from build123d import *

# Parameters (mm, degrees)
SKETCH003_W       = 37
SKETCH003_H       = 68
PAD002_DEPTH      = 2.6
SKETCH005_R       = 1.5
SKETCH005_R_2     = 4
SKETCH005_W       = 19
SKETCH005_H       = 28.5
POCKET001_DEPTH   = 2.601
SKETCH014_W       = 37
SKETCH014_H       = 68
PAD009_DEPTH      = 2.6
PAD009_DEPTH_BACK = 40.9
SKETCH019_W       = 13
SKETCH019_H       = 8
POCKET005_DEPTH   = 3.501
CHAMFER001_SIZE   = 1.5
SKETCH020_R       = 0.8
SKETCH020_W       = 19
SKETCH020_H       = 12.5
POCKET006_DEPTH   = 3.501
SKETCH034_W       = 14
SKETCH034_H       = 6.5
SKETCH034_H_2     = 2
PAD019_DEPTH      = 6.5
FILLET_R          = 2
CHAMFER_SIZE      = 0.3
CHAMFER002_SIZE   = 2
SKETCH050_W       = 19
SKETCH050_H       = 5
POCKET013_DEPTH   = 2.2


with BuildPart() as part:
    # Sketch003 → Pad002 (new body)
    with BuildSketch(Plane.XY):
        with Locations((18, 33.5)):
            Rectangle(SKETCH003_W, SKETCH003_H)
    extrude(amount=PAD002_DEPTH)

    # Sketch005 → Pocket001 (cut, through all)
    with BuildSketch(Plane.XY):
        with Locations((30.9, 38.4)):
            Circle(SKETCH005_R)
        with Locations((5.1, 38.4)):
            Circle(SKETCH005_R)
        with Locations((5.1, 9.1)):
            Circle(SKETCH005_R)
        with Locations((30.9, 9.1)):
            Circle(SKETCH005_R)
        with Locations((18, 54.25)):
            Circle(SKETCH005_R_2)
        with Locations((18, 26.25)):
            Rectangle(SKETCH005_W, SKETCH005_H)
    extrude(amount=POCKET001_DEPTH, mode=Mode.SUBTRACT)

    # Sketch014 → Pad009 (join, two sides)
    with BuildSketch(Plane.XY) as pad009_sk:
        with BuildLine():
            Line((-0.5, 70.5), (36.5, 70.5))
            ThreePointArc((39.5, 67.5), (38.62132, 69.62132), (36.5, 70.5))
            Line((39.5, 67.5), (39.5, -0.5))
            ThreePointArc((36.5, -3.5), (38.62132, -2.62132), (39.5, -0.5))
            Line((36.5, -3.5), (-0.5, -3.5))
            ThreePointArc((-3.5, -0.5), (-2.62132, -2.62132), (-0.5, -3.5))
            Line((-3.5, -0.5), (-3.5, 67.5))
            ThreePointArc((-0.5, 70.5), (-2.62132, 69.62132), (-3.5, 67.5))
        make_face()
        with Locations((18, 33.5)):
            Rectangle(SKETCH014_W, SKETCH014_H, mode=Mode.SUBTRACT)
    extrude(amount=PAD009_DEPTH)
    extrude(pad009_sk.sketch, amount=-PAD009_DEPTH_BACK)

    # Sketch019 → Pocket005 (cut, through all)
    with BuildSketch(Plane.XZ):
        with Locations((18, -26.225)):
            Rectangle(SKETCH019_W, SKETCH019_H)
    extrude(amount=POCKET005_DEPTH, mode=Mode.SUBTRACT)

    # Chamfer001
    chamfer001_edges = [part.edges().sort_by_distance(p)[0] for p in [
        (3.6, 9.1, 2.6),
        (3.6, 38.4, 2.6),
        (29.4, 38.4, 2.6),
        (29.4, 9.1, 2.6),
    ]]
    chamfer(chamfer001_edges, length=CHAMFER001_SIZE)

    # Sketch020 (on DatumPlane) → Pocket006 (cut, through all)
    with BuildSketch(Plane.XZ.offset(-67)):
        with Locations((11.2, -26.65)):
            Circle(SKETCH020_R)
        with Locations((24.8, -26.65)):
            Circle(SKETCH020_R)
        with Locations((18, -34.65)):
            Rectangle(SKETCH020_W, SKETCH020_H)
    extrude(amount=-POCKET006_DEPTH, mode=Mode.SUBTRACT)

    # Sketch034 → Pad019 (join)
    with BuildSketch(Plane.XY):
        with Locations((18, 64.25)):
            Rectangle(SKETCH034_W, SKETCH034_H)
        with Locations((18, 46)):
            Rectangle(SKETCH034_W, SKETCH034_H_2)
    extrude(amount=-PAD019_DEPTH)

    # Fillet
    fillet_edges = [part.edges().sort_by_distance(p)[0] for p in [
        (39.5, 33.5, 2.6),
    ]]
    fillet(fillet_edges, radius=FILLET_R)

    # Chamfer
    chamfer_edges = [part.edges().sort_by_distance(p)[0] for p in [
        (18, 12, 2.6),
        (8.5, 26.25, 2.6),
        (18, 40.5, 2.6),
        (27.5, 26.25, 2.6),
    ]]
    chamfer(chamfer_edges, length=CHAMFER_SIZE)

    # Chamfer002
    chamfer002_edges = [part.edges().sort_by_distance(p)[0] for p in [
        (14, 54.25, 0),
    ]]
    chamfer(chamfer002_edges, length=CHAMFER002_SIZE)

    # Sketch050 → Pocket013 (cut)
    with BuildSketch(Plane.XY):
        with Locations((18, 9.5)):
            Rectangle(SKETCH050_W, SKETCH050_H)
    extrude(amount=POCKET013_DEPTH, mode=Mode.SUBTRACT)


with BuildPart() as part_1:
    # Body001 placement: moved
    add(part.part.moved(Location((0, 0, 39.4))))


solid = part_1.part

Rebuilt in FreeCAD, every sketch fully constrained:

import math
import FreeCAD as App
import Part
import Sketcher


def edges_at(feature, points):
    """Names of the edges that pass closest to the given points."""
    edges = feature.Shape.Edges
    near = lambda p: min(range(len(edges)), key=lambda i: edges[i].distToShape(Part.Vertex(*p))[0])
    return sorted({f"Edge{near(p) + 1}" for p in points})


def add_polygon(sketch, points):
    """Adds a closed chain of lines whose ends are joined by coincident constraints."""
    first, n = sketch.GeometryCount, len(points)
    for a, b in zip(points, points[1:] + points[:1]):
        sketch.addGeometry(Part.LineSegment(App.Vector(*a, 0), App.Vector(*b, 0)), False)
    for i in range(n):
        sketch.addConstraint(Sketcher.Constraint("Coincident", first + i, 2, first + (i + 1) % n, 1))

doc = App.newDocument("Part")
body = doc.addObject("PartDesign::Body", "Body")

sketch1 = body.newObject("Sketcher::SketchObject", "Sketch")
sketch1.AttachmentSupport = (doc.getObject("XY_Plane"), [""])
sketch1.MapMode = "FlatFace"
add_polygon(sketch1, [(-0.5, 67.5), (-0.5, -0.5), (36.5, -0.5), (36.5, 67.5)])
sketch1.addConstraint([
    Sketcher.Constraint("Vertical", 0),
    Sketcher.Constraint("Horizontal", 1),
    Sketcher.Constraint("Vertical", 2),
    Sketcher.Constraint("Horizontal", 3),
    Sketcher.Constraint("DistanceX", 1, 1, 1, 2, 37.0),
    Sketcher.Constraint("DistanceY", 0, 2, 0, 1, 68.0),
    Sketcher.Constraint("DistanceX", 0, 2, -1, 1, 0.5),
    Sketcher.Constraint("DistanceY", 0, 2, -1, 1, 0.5),
])
pad1 = body.newObject("PartDesign::Pad", "Pad")
pad1.Profile = sketch1
pad1.Length = 2.6

sketch2 = body.newObject("Sketcher::SketchObject", "Sketch001")
sketch2.AttachmentSupport = (doc.getObject("XY_Plane"), [""])
sketch2.MapMode = "FlatFace"
sketch2.addGeometry(Part.Circle(App.Vector(30.9, 38.4, 0), App.Vector(0, 0, 1), 1.5), False)
sketch2.addGeometry(Part.Circle(App.Vector(5.1, 38.4, 0), App.Vector(0, 0, 1), 1.5), False)
sketch2.addGeometry(Part.Circle(App.Vector(5.1, 9.1, 0), App.Vector(0, 0, 1), 1.5), False)
sketch2.addGeometry(Part.Circle(App.Vector(30.9, 9.1, 0), App.Vector(0, 0, 1), 1.5), False)
sketch2.addGeometry(Part.Circle(App.Vector(18, 54.25, 0), App.Vector(0, 0, 1), 4), False)
add_polygon(sketch2, [(8.5, 40.5), (8.5, 12), (27.5, 12), (27.5, 40.5)])
sketch2.addConstraint([
    Sketcher.Constraint("Vertical", 5),
    Sketcher.Constraint("Horizontal", 6),
    Sketcher.Constraint("Vertical", 7),
    Sketcher.Constraint("Horizontal", 8),
    Sketcher.Constraint("Equal", 0, 1),
    Sketcher.Constraint("Equal", 1, 2),
    Sketcher.Constraint("Equal", 2, 3),
    Sketcher.Constraint("Horizontal", 0, 3, 1, 3),
    Sketcher.Constraint("Horizontal", 2, 3, 3, 3),
    Sketcher.Constraint("Vertical", 1, 3, 2, 3),
    Sketcher.Constraint("Vertical", 0, 3, 3, 3),
    Sketcher.Constraint("Diameter", 0, 3.0),
    Sketcher.Constraint("Diameter", 4, 8.0),
    Sketcher.Constraint("DistanceX", 6, 1, 6, 2, 19.0),
    Sketcher.Constraint("DistanceY", 5, 2, 5, 1, 28.5),
    Sketcher.Constraint("DistanceX", -1, 1, 4, 3, 18.0),
    Sketcher.Constraint("DistanceY", -1, 1, 5, 2, 12.0),
    Sketcher.Constraint("DistanceX", -1, 1, 0, 3, 30.9),
    Sketcher.Constraint("DistanceY", -1, 1, 0, 3, 38.4),
    Sketcher.Constraint("DistanceX", -1, 1, 1, 3, 5.1),
    Sketcher.Constraint("DistanceY", -1, 1, 2, 3, 9.1),
    Sketcher.Constraint("DistanceX", -1, 1, 5, 2, 8.5),
    Sketcher.Constraint("DistanceY", -1, 1, 4, 3, 54.25),
])
pocket1 = body.newObject("PartDesign::Pocket", "Pocket")
pocket1.Profile = sketch2
pocket1.Type = "ThroughAll"
pocket1.Reversed = True

sketch3 = body.newObject("Sketcher::SketchObject", "Sketch002")
sketch3.AttachmentSupport = (doc.getObject("XY_Plane"), [""])
sketch3.MapMode = "FlatFace"
sketch3.addGeometry(Part.LineSegment(App.Vector(36.5, 70.5, 0), App.Vector(-0.5, 70.5, 0)), False)
sketch3.addGeometry(Part.ArcOfCircle(Part.Circle(App.Vector(-0.499999, 67.499999, 0), App.Vector(0, 0, 1), 3.000001), math.radians(90.000022), math.radians(179.999978)), False)
sketch3.addGeometry(Part.LineSegment(App.Vector(-3.5, 67.5, 0), App.Vector(-3.5, -0.5, 0)), False)
sketch3.addGeometry(Part.ArcOfCircle(Part.Circle(App.Vector(-0.499999, -0.499999, 0), App.Vector(0, 0, 1), 3.000001), math.radians(-179.999978), math.radians(-90.000022)), False)
sketch3.addGeometry(Part.LineSegment(App.Vector(-0.5, -3.5, 0), App.Vector(36.5, -3.5, 0)), False)
sketch3.addGeometry(Part.ArcOfCircle(Part.Circle(App.Vector(36.499999, -0.499999, 0), App.Vector(0, 0, 1), 3.000001), math.radians(-89.999978), math.radians(-0.000022)), False)
sketch3.addGeometry(Part.LineSegment(App.Vector(39.5, -0.5, 0), App.Vector(39.5, 67.5, 0)), False)
sketch3.addGeometry(Part.ArcOfCircle(Part.Circle(App.Vector(36.499999, 67.499999, 0), App.Vector(0, 0, 1), 3.000001), math.radians(0.000022), math.radians(89.999978)), False)
add_polygon(sketch3, [(-0.5, -0.5), (-0.5, 67.5), (36.5, 67.5), (36.5, -0.5)])
sketch3.addConstraint([
    Sketcher.Constraint("Tangent", 0, 2, 1, 1),
    Sketcher.Constraint("Tangent", 1, 2, 2, 1),
    Sketcher.Constraint("Tangent", 2, 2, 3, 1),
    Sketcher.Constraint("Tangent", 3, 2, 4, 1),
    Sketcher.Constraint("Tangent", 4, 2, 5, 1),
    Sketcher.Constraint("Tangent", 5, 2, 6, 1),
    Sketcher.Constraint("Tangent", 6, 2, 7, 1),
    Sketcher.Constraint("Tangent", 7, 2, 0, 1),
    Sketcher.Constraint("Horizontal", 0),
    Sketcher.Constraint("Vertical", 2),
    Sketcher.Constraint("Horizontal", 4),
    Sketcher.Constraint("Vertical", 6),
    Sketcher.Constraint("Vertical", 8),
    Sketcher.Constraint("Horizontal", 9),
    Sketcher.Constraint("Vertical", 10),
    Sketcher.Constraint("Horizontal", 11),
    Sketcher.Constraint("Coincident", 8, 2, 1, 3),
    Sketcher.Constraint("Coincident", 9, 2, 7, 3),
    Sketcher.Constraint("Coincident", 10, 2, 5, 3),
    Sketcher.Constraint("Equal", 1, 3),
    Sketcher.Constraint("Radius", 1, 3.000001),
    Sketcher.Constraint("DistanceX", 0, 2, 0, 1, 37.0),
    Sketcher.Constraint("DistanceY", 2, 2, 2, 1, 68.0),
    Sketcher.Constraint("DistanceX", 1, 3, -1, 1, 0.499999),
    Sketcher.Constraint("DistanceY", -1, 1, 1, 3, 67.499999),
])
pad2 = body.newObject("PartDesign::Pad", "Pad001")
pad2.Profile = sketch3
pad2.Type = "TwoLengths"
pad2.Length = 2.6
pad2.Length2 = 40.9

sketch4 = body.newObject("Sketcher::SketchObject", "Sketch003")
sketch4.AttachmentSupport = (doc.getObject("XZ_Plane"), [""])
sketch4.MapMode = "FlatFace"
add_polygon(sketch4, [(11.5, -22.225), (11.5, -30.225), (24.5, -30.225), (24.5, -22.225)])
sketch4.addConstraint([
    Sketcher.Constraint("Vertical", 0),
    Sketcher.Constraint("Horizontal", 1),
    Sketcher.Constraint("Vertical", 2),
    Sketcher.Constraint("Horizontal", 3),
    Sketcher.Constraint("DistanceX", 1, 1, 1, 2, 13.0),
    Sketcher.Constraint("DistanceY", 0, 2, 0, 1, 8.0),
    Sketcher.Constraint("DistanceX", -1, 1, 0, 2, 11.5),
    Sketcher.Constraint("DistanceY", 0, 2, -1, 1, 30.225),
])
pocket2 = body.newObject("PartDesign::Pocket", "Pocket001")
pocket2.Profile = sketch4
pocket2.Type = "ThroughAll"
pocket2.Reversed = True
doc.recompute()

chamfer = body.newObject("PartDesign::Chamfer", "Chamfer")
chamfer.Base = (pocket2, edges_at(pocket2, [
    (3.6, 9.1, 2.6),
    (3.6, 38.4, 2.6),
    (29.4, 38.4, 2.6),
    (29.4, 9.1, 2.6),
]))
chamfer.Size = 1.5

sketch5 = body.newObject("Sketcher::SketchObject", "Sketch004")
sketch5.AttachmentSupport = (doc.getObject("XZ_Plane"), [""])
sketch5.MapMode = "FlatFace"
sketch5.AttachmentOffset = App.Placement(App.Vector(0, 0, -67), App.Rotation())
sketch5.addGeometry(Part.Circle(App.Vector(11.2, -26.65, 0), App.Vector(0, 0, 1), 0.8), False)
sketch5.addGeometry(Part.Circle(App.Vector(24.8, -26.65, 0), App.Vector(0, 0, 1), 0.8), False)
add_polygon(sketch5, [(8.5, -28.4), (8.5, -40.9), (27.5, -40.9), (27.5, -28.4)])
sketch5.addConstraint([
    Sketcher.Constraint("Vertical", 2),
    Sketcher.Constraint("Horizontal", 3),
    Sketcher.Constraint("Vertical", 4),
    Sketcher.Constraint("Horizontal", 5),
    Sketcher.Constraint("Equal", 0, 1),
    Sketcher.Constraint("Horizontal", 0, 3, 1, 3),
    Sketcher.Constraint("Diameter", 0, 1.6),
    Sketcher.Constraint("DistanceX", 3, 1, 3, 2, 19.0),
    Sketcher.Constraint("DistanceY", 2, 2, 2, 1, 12.5),
    Sketcher.Constraint("DistanceX", -1, 1, 0, 3, 11.2),
    Sketcher.Constraint("DistanceX", -1, 1, 1, 3, 24.8),
    Sketcher.Constraint("DistanceX", -1, 1, 2, 2, 8.5),
    Sketcher.Constraint("DistanceY", 2, 2, -1, 1, 40.9),
    Sketcher.Constraint("DistanceY", 0, 3, -1, 1, 26.65),
])
pocket3 = body.newObject("PartDesign::Pocket", "Pocket002")
pocket3.Profile = sketch5
pocket3.Type = "ThroughAll"

sketch6 = body.newObject("Sketcher::SketchObject", "Sketch005")
sketch6.AttachmentSupport = (doc.getObject("XY_Plane"), [""])
sketch6.MapMode = "FlatFace"
add_polygon(sketch6, [(11, 67.5), (11, 61), (25, 61), (25, 67.5)])
add_polygon(sketch6, [(11, 47), (11, 45), (25, 45), (25, 47)])
sketch6.addConstraint([
    Sketcher.Constraint("Vertical", 0),
    Sketcher.Constraint("Horizontal", 1),
    Sketcher.Constraint("Vertical", 2),
    Sketcher.Constraint("Horizontal", 3),
    Sketcher.Constraint("Vertical", 4),
    Sketcher.Constraint("Horizontal", 5),
    Sketcher.Constraint("Vertical", 6),
    Sketcher.Constraint("Horizontal", 7),
    Sketcher.Constraint("Vertical", 3, 2, 4, 2),
    Sketcher.Constraint("Vertical", 2, 2, 5, 2),
    Sketcher.Constraint("DistanceX", 1, 1, 1, 2, 14.0),
    Sketcher.Constraint("DistanceY", 4, 2, 4, 1, 2.0),
    Sketcher.Constraint("DistanceY", 0, 2, 0, 1, 6.5),
    Sketcher.Constraint("DistanceX", -1, 1, 0, 2, 11.0),
    Sketcher.Constraint("DistanceY", -1, 1, 0, 2, 61.0),
    Sketcher.Constraint("DistanceY", -1, 1, 4, 2, 45.0),
])
pad3 = body.newObject("PartDesign::Pad", "Pad002")
pad3.Profile = sketch6
pad3.Length = 6.5
pad3.Reversed = True
doc.recompute()

fillet = body.newObject("PartDesign::Fillet", "Fillet")
fillet.Base = (pad3, edges_at(pad3, [(39.5, 33.5, 2.6)]))
fillet.Radius = 2
doc.recompute()

chamfer2 = body.newObject("PartDesign::Chamfer", "Chamfer001")
chamfer2.Base = (fillet, edges_at(fillet, [
    (18, 12, 2.6),
    (8.5, 26.25, 2.6),
    (18, 40.5, 2.6),
    (27.5, 26.25, 2.6),
]))
chamfer2.Size = 0.3
doc.recompute()

chamfer3 = body.newObject("PartDesign::Chamfer", "Chamfer002")
chamfer3.Base = (chamfer2, edges_at(chamfer2, [(14, 54.25, 0)]))
chamfer3.Size = 2

sketch7 = body.newObject("Sketcher::SketchObject", "Sketch006")
sketch7.AttachmentSupport = (doc.getObject("XY_Plane"), [""])
sketch7.MapMode = "FlatFace"
add_polygon(sketch7, [(8.5, 12), (8.5, 7), (27.5, 7), (27.5, 12)])
sketch7.addConstraint([
    Sketcher.Constraint("Vertical", 0),
    Sketcher.Constraint("Horizontal", 1),
    Sketcher.Constraint("Vertical", 2),
    Sketcher.Constraint("Horizontal", 3),
    Sketcher.Constraint("DistanceX", 1, 1, 1, 2, 19.0),
    Sketcher.Constraint("DistanceY", 0, 2, 0, 1, 5.0),
    Sketcher.Constraint("DistanceY", -1, 1, 0, 2, 7.0),
    Sketcher.Constraint("DistanceX", -1, 1, 0, 2, 8.5),
])
pocket4 = body.newObject("PartDesign::Pocket", "Pocket003")
pocket4.Profile = sketch7
pocket4.Length = 2.2
pocket4.Reversed = True
body2 = doc.addObject("PartDesign::Body", "Body001")
doc.recompute()

body.Placement = App.Placement(App.Vector(0, 0, 39.4), App.Rotation(App.Vector(0, 0, 1), 0))
boolean = body2.newObject("PartDesign::Boolean", "Boolean")
boolean.Type = "Fuse"
boolean.addObjects([body])

doc.recompute()
